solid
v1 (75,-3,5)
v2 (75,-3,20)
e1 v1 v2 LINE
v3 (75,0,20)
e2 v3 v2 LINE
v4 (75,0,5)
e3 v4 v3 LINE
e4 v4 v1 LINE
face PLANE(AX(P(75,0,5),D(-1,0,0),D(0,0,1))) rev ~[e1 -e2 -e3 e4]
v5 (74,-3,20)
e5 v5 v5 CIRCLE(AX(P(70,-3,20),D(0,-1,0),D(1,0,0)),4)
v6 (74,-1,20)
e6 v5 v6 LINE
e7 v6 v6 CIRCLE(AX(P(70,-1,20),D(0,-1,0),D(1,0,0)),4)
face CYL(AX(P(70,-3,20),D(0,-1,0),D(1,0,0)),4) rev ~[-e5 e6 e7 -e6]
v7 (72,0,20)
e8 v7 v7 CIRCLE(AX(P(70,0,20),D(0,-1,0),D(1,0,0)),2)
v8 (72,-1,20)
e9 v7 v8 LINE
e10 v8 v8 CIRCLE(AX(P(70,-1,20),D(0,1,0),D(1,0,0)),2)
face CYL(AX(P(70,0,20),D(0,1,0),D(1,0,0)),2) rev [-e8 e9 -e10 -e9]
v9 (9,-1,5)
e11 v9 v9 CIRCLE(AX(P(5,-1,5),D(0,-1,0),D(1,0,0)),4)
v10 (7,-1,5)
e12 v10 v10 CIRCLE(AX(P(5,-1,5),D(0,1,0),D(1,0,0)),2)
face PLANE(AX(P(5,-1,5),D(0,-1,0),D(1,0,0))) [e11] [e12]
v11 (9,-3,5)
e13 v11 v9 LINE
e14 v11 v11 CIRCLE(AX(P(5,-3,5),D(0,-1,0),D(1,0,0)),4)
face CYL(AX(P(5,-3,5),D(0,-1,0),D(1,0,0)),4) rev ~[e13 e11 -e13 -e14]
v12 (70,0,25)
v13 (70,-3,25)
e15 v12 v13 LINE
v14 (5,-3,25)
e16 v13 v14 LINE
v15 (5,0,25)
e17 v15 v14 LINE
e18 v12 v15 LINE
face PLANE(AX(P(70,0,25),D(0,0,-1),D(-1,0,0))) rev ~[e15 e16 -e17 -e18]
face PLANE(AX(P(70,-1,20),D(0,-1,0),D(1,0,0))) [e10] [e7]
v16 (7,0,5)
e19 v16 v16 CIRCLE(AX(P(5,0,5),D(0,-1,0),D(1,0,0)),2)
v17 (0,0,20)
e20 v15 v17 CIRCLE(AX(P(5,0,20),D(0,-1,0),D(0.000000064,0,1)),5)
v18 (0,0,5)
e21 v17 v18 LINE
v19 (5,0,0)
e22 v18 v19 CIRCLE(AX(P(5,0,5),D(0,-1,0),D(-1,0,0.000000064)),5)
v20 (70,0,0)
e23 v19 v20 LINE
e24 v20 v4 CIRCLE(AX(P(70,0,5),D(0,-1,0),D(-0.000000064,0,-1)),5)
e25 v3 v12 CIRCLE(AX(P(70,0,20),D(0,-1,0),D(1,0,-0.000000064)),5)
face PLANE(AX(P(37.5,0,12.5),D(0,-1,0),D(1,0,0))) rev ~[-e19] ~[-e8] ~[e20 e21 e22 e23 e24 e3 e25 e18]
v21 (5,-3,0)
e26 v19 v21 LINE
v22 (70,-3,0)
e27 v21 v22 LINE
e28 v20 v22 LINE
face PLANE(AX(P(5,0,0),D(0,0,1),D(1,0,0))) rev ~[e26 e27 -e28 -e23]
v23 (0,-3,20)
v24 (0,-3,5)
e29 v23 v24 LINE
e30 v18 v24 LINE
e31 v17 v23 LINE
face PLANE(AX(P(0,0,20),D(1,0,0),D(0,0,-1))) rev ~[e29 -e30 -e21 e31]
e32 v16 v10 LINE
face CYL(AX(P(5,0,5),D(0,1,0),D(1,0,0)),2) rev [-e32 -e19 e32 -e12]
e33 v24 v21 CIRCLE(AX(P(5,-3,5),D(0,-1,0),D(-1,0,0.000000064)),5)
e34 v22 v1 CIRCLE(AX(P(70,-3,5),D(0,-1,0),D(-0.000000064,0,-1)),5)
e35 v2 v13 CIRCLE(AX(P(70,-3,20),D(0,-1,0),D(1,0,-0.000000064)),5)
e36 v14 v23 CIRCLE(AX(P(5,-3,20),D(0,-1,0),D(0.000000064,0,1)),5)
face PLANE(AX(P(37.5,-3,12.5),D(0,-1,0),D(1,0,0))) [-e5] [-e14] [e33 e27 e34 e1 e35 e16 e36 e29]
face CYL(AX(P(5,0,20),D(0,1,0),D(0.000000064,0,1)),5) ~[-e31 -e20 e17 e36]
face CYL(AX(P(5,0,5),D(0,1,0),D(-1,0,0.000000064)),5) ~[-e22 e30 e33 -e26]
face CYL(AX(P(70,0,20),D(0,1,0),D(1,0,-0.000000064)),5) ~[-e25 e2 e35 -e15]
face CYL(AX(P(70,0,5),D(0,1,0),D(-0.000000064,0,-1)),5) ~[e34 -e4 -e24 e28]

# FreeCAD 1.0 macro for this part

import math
import FreeCAD as App
import Part
import Sketcher
from FreeCAD import Vector

doc = App.newDocument("Part")
body = doc.addObject("PartDesign::Body", "Body")

# Sketch on XZ plane
sketch1 = body.newObject("Sketcher::SketchObject", "Sketch")
sketch1.AttachmentSupport = (doc.getObject("XZ_Plane"), [""])
sketch1.MapMode = "FlatFace"
sketch1.addGeometry(Part.ArcOfCircle(Part.Circle(Vector(5, 5, 0), Vector(0, 0, 1), 5), math.radians(179.999996), math.radians(270.000004)), False)
sketch1.addGeometry(Part.LineSegment(Vector(5, 0, 0), Vector(70, 0, 0)), False)
sketch1.addGeometry(Part.ArcOfCircle(Part.Circle(Vector(70, 5, 0), Vector(0, 0, 1), 5), math.radians(-90.000004), math.radians(0.000004)), False)
sketch1.addGeometry(Part.LineSegment(Vector(75, 5, 0), Vector(75, 20, 0)), False)
sketch1.addGeometry(Part.ArcOfCircle(Part.Circle(Vector(70, 20, 0), Vector(0, 0, 1), 5), math.radians(-0.000004), math.radians(90.000004)), False)
sketch1.addGeometry(Part.LineSegment(Vector(70, 25, 0), Vector(5, 25, 0)), False)
sketch1.addGeometry(Part.ArcOfCircle(Part.Circle(Vector(5, 20, 0), Vector(0, 0, 1), 5), math.radians(89.999996), math.radians(180.000004)), False)
sketch1.addGeometry(Part.LineSegment(Vector(0, 20, 0), Vector(0, 5, 0)), False)
sketch1.addGeometry(Part.Circle(Vector(5, 5, 0), Vector(0, 0, 1), 2), False)
sketch1.addGeometry(Part.Circle(Vector(70, 20, 0), Vector(0, 0, 1), 2), False)
sketch1.addConstraint(Sketcher.Constraint("Tangent", 0, 2, 1, 1))
sketch1.addConstraint(Sketcher.Constraint("Tangent", 1, 2, 2, 1))
sketch1.addConstraint(Sketcher.Constraint("Tangent", 2, 2, 3, 1))
sketch1.addConstraint(Sketcher.Constraint("Tangent", 3, 2, 4, 1))
sketch1.addConstraint(Sketcher.Constraint("Tangent", 4, 2, 5, 1))
sketch1.addConstraint(Sketcher.Constraint("Tangent", 5, 2, 6, 1))
sketch1.addConstraint(Sketcher.Constraint("Tangent", 6, 2, 7, 1))
sketch1.addConstraint(Sketcher.Constraint("Tangent", 7, 2, 0, 1))
sketch1.addConstraint(Sketcher.Constraint("Horizontal", 1))
sketch1.addConstraint(Sketcher.Constraint("Vertical", 3))
sketch1.addConstraint(Sketcher.Constraint("Horizontal", 5))
sketch1.addConstraint(Sketcher.Constraint("Vertical", 7))
sketch1.addConstraint(Sketcher.Constraint("Coincident", 8, 3, 0, 3))
sketch1.addConstraint(Sketcher.Constraint("Coincident", 9, 3, 4, 3))
sketch1.addConstraint(Sketcher.Constraint("Equal", 0, 2))
sketch1.addConstraint(Sketcher.Constraint("Equal", 2, 4))
sketch1.addConstraint(Sketcher.Constraint("Equal", 4, 6))
sketch1.addConstraint(Sketcher.Constraint("Equal", 8, 9))
sketch1.addConstraint(Sketcher.Constraint("PointOnObject", 0, 2, -1))
sketch1.addConstraint(Sketcher.Constraint("PointOnObject", 6, 2, -2))
sketch1.addConstraint(Sketcher.Constraint("Diameter", 8, 4.0))
sketch1.addConstraint(Sketcher.Constraint("Radius", 0, 5.0))
sketch1.addConstraint(Sketcher.Constraint("DistanceX", 1, 1, 1, 2, 65.0))
sketch1.addConstraint(Sketcher.Constraint("DistanceY", 3, 1, 3, 2, 15.0))
pad1 = body.newObject("PartDesign::Pad", "Pad")
pad1.Profile = sketch1
pad1.Length = 3

# Sketch on XZ plane
sketch2 = body.newObject("Sketcher::SketchObject", "Sketch001")
sketch2.AttachmentSupport = (doc.getObject("XZ_Plane"), [""])
sketch2.MapMode = "FlatFace"
sketch2.AttachmentOffset = App.Placement(Vector(0, 0, 3), App.Rotation())
sketch2.addGeometry(Part.Circle(Vector(5, 5, 0), Vector(0, 0, 1), 4), False)
sketch2.addGeometry(Part.Circle(Vector(70, 20, 0), Vector(0, 0, 1), 4), False)
sketch2.addConstraint(Sketcher.Constraint("Equal", 0, 1))
sketch2.addConstraint(Sketcher.Constraint("Diameter", 0, 8.0))
sketch2.addConstraint(Sketcher.Constraint("DistanceX", -1, 1, 0, 3, 5.0))
sketch2.addConstraint(Sketcher.Constraint("DistanceY", -1, 1, 0, 3, 5.0))
sketch2.addConstraint(Sketcher.Constraint("DistanceX", -1, 1, 1, 3, 70.0))
sketch2.addConstraint(Sketcher.Constraint("DistanceY", -1, 1, 1, 3, 20.0))
pocket1 = body.newObject("PartDesign::Pocket", "Pocket")
pocket1.Profile = sketch2
pocket1.Length = 2

doc.recompute()
